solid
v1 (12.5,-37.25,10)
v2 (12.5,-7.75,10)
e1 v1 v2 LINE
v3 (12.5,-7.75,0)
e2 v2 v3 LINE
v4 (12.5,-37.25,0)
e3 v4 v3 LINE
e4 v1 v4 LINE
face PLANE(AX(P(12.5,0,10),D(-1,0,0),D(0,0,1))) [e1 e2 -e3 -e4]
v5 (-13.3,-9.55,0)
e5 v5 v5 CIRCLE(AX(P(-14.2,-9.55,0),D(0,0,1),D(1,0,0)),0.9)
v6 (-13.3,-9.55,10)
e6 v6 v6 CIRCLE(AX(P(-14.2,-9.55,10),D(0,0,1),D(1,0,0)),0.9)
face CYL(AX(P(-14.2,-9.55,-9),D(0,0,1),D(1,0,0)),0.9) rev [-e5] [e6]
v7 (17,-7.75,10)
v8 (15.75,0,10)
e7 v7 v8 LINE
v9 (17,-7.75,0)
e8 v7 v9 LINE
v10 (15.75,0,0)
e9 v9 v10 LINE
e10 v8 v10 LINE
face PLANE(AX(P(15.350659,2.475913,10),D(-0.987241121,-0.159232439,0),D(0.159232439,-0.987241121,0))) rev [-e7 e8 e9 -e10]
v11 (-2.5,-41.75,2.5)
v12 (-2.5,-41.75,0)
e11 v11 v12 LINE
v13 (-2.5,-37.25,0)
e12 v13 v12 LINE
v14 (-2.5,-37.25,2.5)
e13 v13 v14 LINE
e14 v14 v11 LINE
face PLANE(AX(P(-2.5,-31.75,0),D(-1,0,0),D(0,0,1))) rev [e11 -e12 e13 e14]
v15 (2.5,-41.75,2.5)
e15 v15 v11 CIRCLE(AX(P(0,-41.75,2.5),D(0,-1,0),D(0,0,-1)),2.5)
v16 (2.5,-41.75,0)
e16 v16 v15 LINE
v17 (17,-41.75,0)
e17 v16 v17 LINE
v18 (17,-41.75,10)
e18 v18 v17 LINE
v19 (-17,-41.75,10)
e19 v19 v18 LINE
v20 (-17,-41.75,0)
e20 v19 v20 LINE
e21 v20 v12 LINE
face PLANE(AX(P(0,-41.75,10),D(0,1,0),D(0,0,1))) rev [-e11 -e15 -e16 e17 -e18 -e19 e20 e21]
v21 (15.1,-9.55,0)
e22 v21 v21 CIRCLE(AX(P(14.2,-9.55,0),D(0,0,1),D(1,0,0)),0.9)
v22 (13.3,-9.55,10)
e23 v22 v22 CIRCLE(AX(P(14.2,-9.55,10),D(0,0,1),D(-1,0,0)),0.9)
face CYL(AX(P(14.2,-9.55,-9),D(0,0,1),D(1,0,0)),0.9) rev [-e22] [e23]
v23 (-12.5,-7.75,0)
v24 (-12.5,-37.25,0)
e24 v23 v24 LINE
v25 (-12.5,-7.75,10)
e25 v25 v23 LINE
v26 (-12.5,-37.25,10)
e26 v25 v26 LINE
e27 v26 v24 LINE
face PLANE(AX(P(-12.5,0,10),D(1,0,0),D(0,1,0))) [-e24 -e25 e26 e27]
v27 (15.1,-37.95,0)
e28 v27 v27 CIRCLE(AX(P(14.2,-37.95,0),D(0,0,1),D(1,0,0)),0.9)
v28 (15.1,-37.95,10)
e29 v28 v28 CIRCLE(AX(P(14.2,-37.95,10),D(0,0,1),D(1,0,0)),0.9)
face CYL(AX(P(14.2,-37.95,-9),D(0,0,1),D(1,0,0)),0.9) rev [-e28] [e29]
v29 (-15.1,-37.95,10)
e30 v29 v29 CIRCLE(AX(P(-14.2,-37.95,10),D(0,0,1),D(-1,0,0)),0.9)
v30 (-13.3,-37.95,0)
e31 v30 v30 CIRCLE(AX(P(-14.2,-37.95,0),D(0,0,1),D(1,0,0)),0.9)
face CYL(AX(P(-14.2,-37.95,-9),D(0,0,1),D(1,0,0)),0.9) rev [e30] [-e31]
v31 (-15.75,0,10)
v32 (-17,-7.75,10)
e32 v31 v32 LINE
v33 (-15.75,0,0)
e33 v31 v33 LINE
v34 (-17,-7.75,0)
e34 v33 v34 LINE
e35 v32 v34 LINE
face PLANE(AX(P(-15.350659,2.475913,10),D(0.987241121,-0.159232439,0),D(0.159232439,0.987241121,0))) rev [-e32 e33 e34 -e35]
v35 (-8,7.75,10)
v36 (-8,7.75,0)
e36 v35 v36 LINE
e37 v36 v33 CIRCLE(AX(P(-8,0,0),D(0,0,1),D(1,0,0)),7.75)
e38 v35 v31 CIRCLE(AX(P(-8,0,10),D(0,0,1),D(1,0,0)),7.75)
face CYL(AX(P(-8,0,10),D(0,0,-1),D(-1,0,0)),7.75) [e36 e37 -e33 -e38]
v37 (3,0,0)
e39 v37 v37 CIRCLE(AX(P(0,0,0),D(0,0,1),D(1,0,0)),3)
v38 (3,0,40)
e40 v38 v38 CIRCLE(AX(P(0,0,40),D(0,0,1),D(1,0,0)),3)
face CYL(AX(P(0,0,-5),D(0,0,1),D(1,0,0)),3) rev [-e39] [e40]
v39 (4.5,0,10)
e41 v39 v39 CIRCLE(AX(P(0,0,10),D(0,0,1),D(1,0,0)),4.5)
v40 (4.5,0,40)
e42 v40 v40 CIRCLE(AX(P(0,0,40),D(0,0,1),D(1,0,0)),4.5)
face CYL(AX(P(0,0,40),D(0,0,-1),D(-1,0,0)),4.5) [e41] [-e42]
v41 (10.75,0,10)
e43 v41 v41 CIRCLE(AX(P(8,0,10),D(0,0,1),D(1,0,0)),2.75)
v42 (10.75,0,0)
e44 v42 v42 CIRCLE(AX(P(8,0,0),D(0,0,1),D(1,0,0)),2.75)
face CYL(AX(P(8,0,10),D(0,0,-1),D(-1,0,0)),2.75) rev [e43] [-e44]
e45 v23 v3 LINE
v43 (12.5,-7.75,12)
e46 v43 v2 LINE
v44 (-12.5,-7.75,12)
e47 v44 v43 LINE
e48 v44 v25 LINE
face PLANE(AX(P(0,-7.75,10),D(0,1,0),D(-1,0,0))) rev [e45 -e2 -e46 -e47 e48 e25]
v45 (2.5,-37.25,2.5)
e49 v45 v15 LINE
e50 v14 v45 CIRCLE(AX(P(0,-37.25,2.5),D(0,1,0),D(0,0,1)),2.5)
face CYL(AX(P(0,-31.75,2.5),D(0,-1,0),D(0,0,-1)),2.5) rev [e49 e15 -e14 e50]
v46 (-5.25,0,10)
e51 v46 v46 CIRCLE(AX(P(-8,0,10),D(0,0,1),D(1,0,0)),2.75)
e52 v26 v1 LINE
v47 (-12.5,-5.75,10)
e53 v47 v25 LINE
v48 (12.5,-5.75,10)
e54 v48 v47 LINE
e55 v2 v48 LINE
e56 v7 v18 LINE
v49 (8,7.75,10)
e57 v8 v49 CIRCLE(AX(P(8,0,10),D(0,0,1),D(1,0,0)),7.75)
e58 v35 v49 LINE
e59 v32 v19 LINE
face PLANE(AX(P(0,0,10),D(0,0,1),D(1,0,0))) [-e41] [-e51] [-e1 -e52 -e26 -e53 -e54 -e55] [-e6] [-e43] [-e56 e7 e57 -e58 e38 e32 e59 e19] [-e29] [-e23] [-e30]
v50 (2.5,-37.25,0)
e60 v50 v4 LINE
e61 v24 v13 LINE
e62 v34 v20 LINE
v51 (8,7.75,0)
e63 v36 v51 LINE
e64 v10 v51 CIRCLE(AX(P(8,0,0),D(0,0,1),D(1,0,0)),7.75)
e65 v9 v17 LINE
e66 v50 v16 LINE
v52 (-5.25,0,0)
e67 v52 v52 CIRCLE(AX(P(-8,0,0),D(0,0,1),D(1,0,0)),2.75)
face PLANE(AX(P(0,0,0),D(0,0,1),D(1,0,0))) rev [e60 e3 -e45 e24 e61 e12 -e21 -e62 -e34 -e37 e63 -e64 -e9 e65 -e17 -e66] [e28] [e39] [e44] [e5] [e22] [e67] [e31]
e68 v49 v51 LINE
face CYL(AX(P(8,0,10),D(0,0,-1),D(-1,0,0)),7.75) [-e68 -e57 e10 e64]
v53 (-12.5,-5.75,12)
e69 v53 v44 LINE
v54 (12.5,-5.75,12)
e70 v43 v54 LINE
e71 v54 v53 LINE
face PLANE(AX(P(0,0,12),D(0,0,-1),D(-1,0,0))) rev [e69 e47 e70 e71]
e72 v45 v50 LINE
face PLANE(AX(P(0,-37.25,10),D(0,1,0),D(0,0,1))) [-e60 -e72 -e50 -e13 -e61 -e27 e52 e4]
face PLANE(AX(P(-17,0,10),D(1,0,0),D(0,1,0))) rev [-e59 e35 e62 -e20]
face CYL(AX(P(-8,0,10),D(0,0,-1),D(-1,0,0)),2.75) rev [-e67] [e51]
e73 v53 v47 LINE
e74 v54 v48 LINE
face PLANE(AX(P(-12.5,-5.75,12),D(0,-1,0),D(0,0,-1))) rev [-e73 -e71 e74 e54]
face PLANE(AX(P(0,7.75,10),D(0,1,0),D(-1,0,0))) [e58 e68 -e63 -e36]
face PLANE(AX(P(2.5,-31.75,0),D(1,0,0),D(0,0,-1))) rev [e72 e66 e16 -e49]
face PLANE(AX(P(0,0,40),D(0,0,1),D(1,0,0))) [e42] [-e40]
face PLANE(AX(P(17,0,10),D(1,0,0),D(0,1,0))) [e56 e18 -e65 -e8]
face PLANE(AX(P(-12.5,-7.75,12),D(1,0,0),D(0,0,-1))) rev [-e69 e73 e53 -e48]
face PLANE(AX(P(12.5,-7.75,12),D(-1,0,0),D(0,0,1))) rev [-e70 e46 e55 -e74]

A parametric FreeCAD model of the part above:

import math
import FreeCAD as App
import Part
import Sketcher
Q = App.Units.Quantity

doc = App.newDocument("Part")
body = doc.addObject("PartDesign::Body", "Body")

sketch1 = body.newObject("Sketcher::SketchObject", "Sketch")
sketch1.AttachmentSupport = (doc.getObject("XY_Plane"), [""])
sketch1.MapMode = "FlatFace"
sketch1.addGeometry([
    Part.LineSegment(App.Vector(8, 7.75, 0), App.Vector(-8, 7.75, 0)),
    Part.ArcOfCircle(Part.Circle(App.Vector(-8, 0, 0), App.Vector(0, 0, 1), 7.75), math.radians(90), math.radians(270)),
    Part.LineSegment(App.Vector(-8, -7.75, 0), App.Vector(8, -7.75, 0)),
    Part.ArcOfCircle(Part.Circle(App.Vector(8, 0, 0), App.Vector(0, 0, 1), 7.75), math.radians(-90), math.radians(90)),
    Part.Circle(App.Vector(-8, 0, 0), App.Vector(0, 0, 1), 2.75),
    Part.Circle(App.Vector(8, 0, 0), App.Vector(0, 0, 1), 2.75),
], False)
sketch1.addConstraint([
    Sketcher.Constraint("Tangent", 0, 2, 1, 1),
    Sketcher.Constraint("Tangent", 1, 2, 2, 1),
    Sketcher.Constraint("Tangent", 2, 2, 3, 1),
    Sketcher.Constraint("Tangent", 3, 2, 0, 1),
    Sketcher.Constraint("Horizontal", 0),
    Sketcher.Constraint("Horizontal", 2),
    Sketcher.Constraint("Coincident", 4, 3, 1, 3),
    Sketcher.Constraint("Coincident", 5, 3, 3, 3),
    Sketcher.Constraint("Equal", 4, 5),
    Sketcher.Constraint("Symmetric", 1, 3, 3, 3, -1, 1),
    Sketcher.Constraint("Diameter", 4, Q("5.5 mm")),
    Sketcher.Constraint("DistanceX", 0, 2, 0, 1, Q("16 mm")),
    Sketcher.Constraint("Radius", 1, Q("7.75 mm")),
])
pad1 = body.newObject("PartDesign::Pad", "Pad")
pad1.Profile = sketch1
pad1.Length = 10

sketch2 = body.newObject("Sketcher::SketchObject", "Sketch001")
sketch2.AttachmentSupport = (doc.getObject("XY_Plane"), [""])
sketch2.MapMode = "FlatFace"
sketch2.AttachmentOffset = App.Placement(App.Vector(0, 0, 10), App.Rotation())
sketch2.addGeometry(Part.Circle(App.Vector(0, 0, 0), App.Vector(0, 0, 1), 3), False)
sketch2.addConstraint([
    Sketcher.Constraint("Coincident", 0, 3, -1, 1),
    Sketcher.Constraint("Diameter", 0, Q("6 mm")),
])
pocket1 = body.newObject("PartDesign::Pocket", "Pocket")
pocket1.Profile = sketch2
pocket1.Length = 15

sketch3 = body.newObject("Sketcher::SketchObject", "Sketch002")
sketch3.AttachmentSupport = (doc.getObject("XY_Plane"), [""])
sketch3.MapMode = "FlatFace"
sketch3.AttachmentOffset = App.Placement(App.Vector(0, 0, 10), App.Rotation())
sketch3.addGeometry([
    Part.Circle(App.Vector(0, 0, 0), App.Vector(0, 0, 1), 4.5),
    Part.Circle(App.Vector(0, 0, 0), App.Vector(0, 0, 1), 3),
], False)
sketch3.addConstraint([
    Sketcher.Constraint("Coincident", 0, 3, -1, 1),
    Sketcher.Constraint("Coincident", 1, 3, -1, 1),
    Sketcher.Constraint("Diameter", 0, Q("9 mm")),
    Sketcher.Constraint("Diameter", 1, Q("6 mm")),
])
pad2 = body.newObject("PartDesign::Pad", "Pad001")
pad2.Profile = sketch3
pad2.Length = 30

sketch4 = body.newObject("Sketcher::SketchObject", "Sketch003")
sketch4.AttachmentSupport = (doc.getObject("XY_Plane"), [""])
sketch4.MapMode = "FlatFace"
sketch4.addGeometry([
    Part.LineSegment(App.Vector(-17, -7.75, 0), App.Vector(-17, -41.75, 0)),
    Part.LineSegment(App.Vector(-17, -41.75, 0), App.Vector(17, -41.75, 0)),
    Part.LineSegment(App.Vector(17, -41.75, 0), App.Vector(17, -7.75, 0)),
    Part.LineSegment(App.Vector(17, -7.75, 0), App.Vector(15.75, 0, 0)),
    Part.ArcOfCircle(Part.Circle(App.Vector(8, 0, 0), App.Vector(0, 0, 1), 7.75), math.radians(-90), math.radians(0)),
    Part.LineSegment(App.Vector(8, -7.75, 0), App.Vector(12.5, -7.75, 0)),
    Part.LineSegment(App.Vector(12.5, -7.75, 0), App.Vector(12.5, -37.25, 0)),
    Part.LineSegment(App.Vector(12.5, -37.25, 0), App.Vector(-12.5, -37.25, 0)),
    Part.LineSegment(App.Vector(-12.5, -37.25, 0), App.Vector(-12.5, -7.75, 0)),
    Part.LineSegment(App.Vector(-12.5, -7.75, 0), App.Vector(-8, -7.75, 0)),
    Part.ArcOfCircle(Part.Circle(App.Vector(-8, 0, 0), App.Vector(0, 0, 1), 7.75), math.radians(-180), math.radians(-90)),
    Part.LineSegment(App.Vector(-15.75, 0, 0), App.Vector(-17, -7.75, 0)),
], False)
sketch4.addConstraint([
    Sketcher.Constraint("Coincident", 0, 2, 1, 1),
    Sketcher.Constraint("Coincident", 1, 2, 2, 1),
    Sketcher.Constraint("Coincident", 2, 2, 3, 1),
    Sketcher.Constraint("Coincident", 3, 2, 4, 2),
    Sketcher.Constraint("Tangent", 4, 1, 5, 1),
    Sketcher.Constraint("Coincident", 5, 2, 6, 1),
    Sketcher.Constraint("Coincident", 6, 2, 7, 1),
    Sketcher.Constraint("Coincident", 7, 2, 8, 1),
    Sketcher.Constraint("Coincident", 8, 2, 9, 1),
    Sketcher.Constraint("Tangent", 9, 2, 10, 2),
    Sketcher.Constraint("Coincident", 10, 1, 11, 1),
    Sketcher.Constraint("Coincident", 11, 2, 0, 1),
    Sketcher.Constraint("Vertical", 0),
    Sketcher.Constraint("Horizontal", 1),
    Sketcher.Constraint("Vertical", 2),
    Sketcher.Constraint("Horizontal", 5),
    Sketcher.Constraint("Vertical", 6),
    Sketcher.Constraint("Horizontal", 7),
    Sketcher.Constraint("Vertical", 8),
    Sketcher.Constraint("Horizontal", 9),
    Sketcher.Constraint("Equal", 4, 10),
    Sketcher.Constraint("Symmetric", 4, 3, 10, 3, -1, 1),
    Sketcher.Constraint("Symmetric", 5, 2, 8, 2, -2),
    Sketcher.Constraint("Symmetric", 2, 2, 11, 2, -2),
    Sketcher.Constraint("PointOnObject", 3, 2, -1),
    Sketcher.Constraint("PointOnObject", 10, 1, -1),
    Sketcher.Constraint("Horizontal", 2, 2, 4, 1),
    Sketcher.Constraint("Equal", 1, 0),
    Sketcher.Constraint("DistanceX", 1, 1, 1, 2, Q("34 mm")),
    Sketcher.Constraint("DistanceX", 7, 2, 7, 1, Q("25 mm")),
    Sketcher.Constraint("Radius", 4, Q("7.75 mm")),
    Sketcher.Constraint("DistanceX", 5, 1, 5, 2, Q("4.5 mm")),
    Sketcher.Constraint("DistanceY", 6, 2, 6, 1, Q("29.5 mm")),
])
pad3 = body.newObject("PartDesign::Pad", "Pad002")
pad3.Profile = sketch4
pad3.Length = 10

sketch5 = body.newObject("Sketcher::SketchObject", "Sketch004")
sketch5.AttachmentSupport = (doc.getObject("XZ_Plane"), [""])
sketch5.MapMode = "FlatFace"
sketch5.AttachmentOffset = App.Placement(App.Vector(0, 0, 41.75), App.Rotation())
sketch5.addGeometry([
    Part.LineSegment(App.Vector(-2.5, 0, 0), App.Vector(2.5, 0, 0)),
    Part.LineSegment(App.Vector(2.5, 0, 0), App.Vector(2.5, 2.5, 0)),
    Part.ArcOfCircle(Part.Circle(App.Vector(0, 2.5, 0), App.Vector(0, 0, 1), 2.5), math.radians(0), math.radians(180)),
    Part.LineSegment(App.Vector(-2.5, 2.5, 0), App.Vector(-2.5, 0, 0)),
], False)
sketch5.addConstraint([
    Sketcher.Constraint("Coincident", 0, 2, 1, 1),
    Sketcher.Constraint("Tangent", 1, 2, 2, 1),
    Sketcher.Constraint("Tangent", 2, 2, 3, 1),
    Sketcher.Constraint("Coincident", 3, 2, 0, 1),
    Sketcher.Constraint("Horizontal", 0),
    Sketcher.Constraint("Vertical", 1),
    Sketcher.Constraint("Vertical", 3),
    Sketcher.Constraint("Symmetric", 0, 2, 3, 2, -1, 1),
    Sketcher.Constraint("Radius", 2, Q("2.5 mm")),
    Sketcher.Constraint("DistanceY", 1, 1, 1, 2, Q("2.5 mm")),
])
pocket2 = body.newObject("PartDesign::Pocket", "Pocket001")
pocket2.Profile = sketch5
pocket2.Length = 10

sketch6 = body.newObject("Sketcher::SketchObject", "Sketch005")
sketch6.AttachmentSupport = (doc.getObject("XY_Plane"), [""])
sketch6.MapMode = "FlatFace"
sketch6.AttachmentOffset = App.Placement(App.Vector(0, 0, 10), App.Rotation())
sketch6.addGeometry([
    Part.LineSegment(App.Vector(-12.5, -5.75, 0), App.Vector(-12.5, -7.75, 0)),
    Part.LineSegment(App.Vector(-12.5, -7.75, 0), App.Vector(12.5, -7.75, 0)),
    Part.LineSegment(App.Vector(12.5, -7.75, 0), App.Vector(12.5, -5.75, 0)),
    Part.LineSegment(App.Vector(12.5, -5.75, 0), App.Vector(-12.5, -5.75, 0)),
], False)
sketch6.addConstraint([
    Sketcher.Constraint("Coincident", 0, 2, 1, 1),
    Sketcher.Constraint("Coincident", 1, 2, 2, 1),
    Sketcher.Constraint("Coincident", 2, 2, 3, 1),
    Sketcher.Constraint("Coincident", 3, 2, 0, 1),
    Sketcher.Constraint("Vertical", 0),
    Sketcher.Constraint("Horizontal", 1),
    Sketcher.Constraint("Vertical", 2),
    Sketcher.Constraint("Horizontal", 3),
    Sketcher.Constraint("DistanceX", 1, 1, 1, 2, Q("25 mm")),
    Sketcher.Constraint("DistanceY", 0, 2, 0, 1, Q("2 mm")),
    Sketcher.Constraint("DistanceX", 0, 2, -1, 1, Q("12.5 mm")),
    Sketcher.Constraint("DistanceY", 0, 2, -1, 1, Q("7.75 mm")),
])
pad4 = body.newObject("PartDesign::Pad", "Pad003")
pad4.Profile = sketch6
pad4.Length = 2

sketch7 = body.newObject("Sketcher::SketchObject", "Sketch006")
sketch7.AttachmentSupport = (doc.getObject("XY_Plane"), [""])
sketch7.MapMode = "FlatFace"
sketch7.AttachmentOffset = App.Placement(App.Vector(0, 0, 10), App.Rotation())
sketch7.addGeometry([
    Part.Circle(App.Vector(-14.2, -9.55, 0), App.Vector(0, 0, 1), 0.9),
    Part.Circle(App.Vector(14.2, -9.55, 0), App.Vector(0, 0, 1), 0.9),
    Part.Circle(App.Vector(14.2, -37.95, 0), App.Vector(0, 0, 1), 0.9),
    Part.Circle(App.Vector(-14.2, -37.95, 0), App.Vector(0, 0, 1), 0.9),
], False)
sketch7.addConstraint([
    Sketcher.Constraint("Equal", 0, 1),
    Sketcher.Constraint("Equal", 1, 2),
    Sketcher.Constraint("Equal", 2, 3),
    Sketcher.Constraint("Symmetric", 0, 3, 1, 3, -2),
    Sketcher.Constraint("Symmetric", 2, 3, 3, 3, -2),
    Sketcher.Constraint("Vertical", 1, 3, 2, 3),
    Sketcher.Constraint("Diameter", 0, Q("1.8 mm")),
    Sketcher.Constraint("DistanceX", 0, 3, -1, 1, Q("14.2 mm")),
    Sketcher.Constraint("DistanceY", 2, 3, 1, 3, Q("28.4 mm")),
    Sketcher.Constraint("DistanceY", 0, 3, -1, 1, Q("9.55 mm")),
])
pocket3 = body.newObject("PartDesign::Pocket", "Pocket002")
pocket3.Profile = sketch7
pocket3.Length = 19

doc.recompute()
